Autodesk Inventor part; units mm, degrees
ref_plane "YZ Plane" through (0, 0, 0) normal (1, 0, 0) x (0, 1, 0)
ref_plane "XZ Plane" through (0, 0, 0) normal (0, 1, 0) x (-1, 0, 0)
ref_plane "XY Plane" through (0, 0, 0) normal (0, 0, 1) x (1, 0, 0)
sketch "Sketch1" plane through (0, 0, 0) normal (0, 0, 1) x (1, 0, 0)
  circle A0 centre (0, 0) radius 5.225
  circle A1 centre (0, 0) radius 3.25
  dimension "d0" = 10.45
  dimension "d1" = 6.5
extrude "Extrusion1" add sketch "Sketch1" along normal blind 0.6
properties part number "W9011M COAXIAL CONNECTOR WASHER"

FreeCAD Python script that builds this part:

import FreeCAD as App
import Part
import Sketcher

V = App.Vector

doc = App.newDocument("Part")
params = doc.addObject("Spreadsheet::Sheet", "Params")
for row, (alias, value) in enumerate([
    ("sketch1_diameter", "6.5 mm"),
    ("sketch1_diameter2", "10.45 mm"),
    ("pad1_length", "0.6 mm"),
], start=1):
    params.set(f"A{row}", alias)
    params.set(f"B{row}", "=" + value)
    params.setAlias(f"B{row}", alias)

body = doc.addObject("PartDesign::Body", "Body")

sketch1 = doc.addObject("Sketcher::SketchObject", "Sketch")
body.addObject(sketch1)
sketch1.AttachmentSupport = (doc.XY_Plane, [""])
sketch1.MapMode = "FlatFace"
sketch1.addGeometry([
    Part.Circle(V(0, 0, 0), V(0, 0, 1), 5.2),
    Part.Circle(V(0, 0, 0), V(0, 0, 1), 3.2),
], False)
sketch1.addConstraint([
    Sketcher.Constraint("Coincident", 0, 3, -1, 1),
    Sketcher.Constraint("Coincident", 1, 3, -1, 1),
    Sketcher.Constraint("Diameter", 1, 6.5),
    Sketcher.Constraint("Diameter", 0, 10.45),
])
sketch1.setExpression("Constraints[2]", "Params.sketch1_diameter")
sketch1.setExpression("Constraints[3]", "Params.sketch1_diameter2")
pad1 = doc.addObject("PartDesign::Pad", "Pad")
body.addObject(pad1)
pad1.Profile = sketch1
pad1.setExpression("Length", "Params.pad1_length")

doc.recompute()
